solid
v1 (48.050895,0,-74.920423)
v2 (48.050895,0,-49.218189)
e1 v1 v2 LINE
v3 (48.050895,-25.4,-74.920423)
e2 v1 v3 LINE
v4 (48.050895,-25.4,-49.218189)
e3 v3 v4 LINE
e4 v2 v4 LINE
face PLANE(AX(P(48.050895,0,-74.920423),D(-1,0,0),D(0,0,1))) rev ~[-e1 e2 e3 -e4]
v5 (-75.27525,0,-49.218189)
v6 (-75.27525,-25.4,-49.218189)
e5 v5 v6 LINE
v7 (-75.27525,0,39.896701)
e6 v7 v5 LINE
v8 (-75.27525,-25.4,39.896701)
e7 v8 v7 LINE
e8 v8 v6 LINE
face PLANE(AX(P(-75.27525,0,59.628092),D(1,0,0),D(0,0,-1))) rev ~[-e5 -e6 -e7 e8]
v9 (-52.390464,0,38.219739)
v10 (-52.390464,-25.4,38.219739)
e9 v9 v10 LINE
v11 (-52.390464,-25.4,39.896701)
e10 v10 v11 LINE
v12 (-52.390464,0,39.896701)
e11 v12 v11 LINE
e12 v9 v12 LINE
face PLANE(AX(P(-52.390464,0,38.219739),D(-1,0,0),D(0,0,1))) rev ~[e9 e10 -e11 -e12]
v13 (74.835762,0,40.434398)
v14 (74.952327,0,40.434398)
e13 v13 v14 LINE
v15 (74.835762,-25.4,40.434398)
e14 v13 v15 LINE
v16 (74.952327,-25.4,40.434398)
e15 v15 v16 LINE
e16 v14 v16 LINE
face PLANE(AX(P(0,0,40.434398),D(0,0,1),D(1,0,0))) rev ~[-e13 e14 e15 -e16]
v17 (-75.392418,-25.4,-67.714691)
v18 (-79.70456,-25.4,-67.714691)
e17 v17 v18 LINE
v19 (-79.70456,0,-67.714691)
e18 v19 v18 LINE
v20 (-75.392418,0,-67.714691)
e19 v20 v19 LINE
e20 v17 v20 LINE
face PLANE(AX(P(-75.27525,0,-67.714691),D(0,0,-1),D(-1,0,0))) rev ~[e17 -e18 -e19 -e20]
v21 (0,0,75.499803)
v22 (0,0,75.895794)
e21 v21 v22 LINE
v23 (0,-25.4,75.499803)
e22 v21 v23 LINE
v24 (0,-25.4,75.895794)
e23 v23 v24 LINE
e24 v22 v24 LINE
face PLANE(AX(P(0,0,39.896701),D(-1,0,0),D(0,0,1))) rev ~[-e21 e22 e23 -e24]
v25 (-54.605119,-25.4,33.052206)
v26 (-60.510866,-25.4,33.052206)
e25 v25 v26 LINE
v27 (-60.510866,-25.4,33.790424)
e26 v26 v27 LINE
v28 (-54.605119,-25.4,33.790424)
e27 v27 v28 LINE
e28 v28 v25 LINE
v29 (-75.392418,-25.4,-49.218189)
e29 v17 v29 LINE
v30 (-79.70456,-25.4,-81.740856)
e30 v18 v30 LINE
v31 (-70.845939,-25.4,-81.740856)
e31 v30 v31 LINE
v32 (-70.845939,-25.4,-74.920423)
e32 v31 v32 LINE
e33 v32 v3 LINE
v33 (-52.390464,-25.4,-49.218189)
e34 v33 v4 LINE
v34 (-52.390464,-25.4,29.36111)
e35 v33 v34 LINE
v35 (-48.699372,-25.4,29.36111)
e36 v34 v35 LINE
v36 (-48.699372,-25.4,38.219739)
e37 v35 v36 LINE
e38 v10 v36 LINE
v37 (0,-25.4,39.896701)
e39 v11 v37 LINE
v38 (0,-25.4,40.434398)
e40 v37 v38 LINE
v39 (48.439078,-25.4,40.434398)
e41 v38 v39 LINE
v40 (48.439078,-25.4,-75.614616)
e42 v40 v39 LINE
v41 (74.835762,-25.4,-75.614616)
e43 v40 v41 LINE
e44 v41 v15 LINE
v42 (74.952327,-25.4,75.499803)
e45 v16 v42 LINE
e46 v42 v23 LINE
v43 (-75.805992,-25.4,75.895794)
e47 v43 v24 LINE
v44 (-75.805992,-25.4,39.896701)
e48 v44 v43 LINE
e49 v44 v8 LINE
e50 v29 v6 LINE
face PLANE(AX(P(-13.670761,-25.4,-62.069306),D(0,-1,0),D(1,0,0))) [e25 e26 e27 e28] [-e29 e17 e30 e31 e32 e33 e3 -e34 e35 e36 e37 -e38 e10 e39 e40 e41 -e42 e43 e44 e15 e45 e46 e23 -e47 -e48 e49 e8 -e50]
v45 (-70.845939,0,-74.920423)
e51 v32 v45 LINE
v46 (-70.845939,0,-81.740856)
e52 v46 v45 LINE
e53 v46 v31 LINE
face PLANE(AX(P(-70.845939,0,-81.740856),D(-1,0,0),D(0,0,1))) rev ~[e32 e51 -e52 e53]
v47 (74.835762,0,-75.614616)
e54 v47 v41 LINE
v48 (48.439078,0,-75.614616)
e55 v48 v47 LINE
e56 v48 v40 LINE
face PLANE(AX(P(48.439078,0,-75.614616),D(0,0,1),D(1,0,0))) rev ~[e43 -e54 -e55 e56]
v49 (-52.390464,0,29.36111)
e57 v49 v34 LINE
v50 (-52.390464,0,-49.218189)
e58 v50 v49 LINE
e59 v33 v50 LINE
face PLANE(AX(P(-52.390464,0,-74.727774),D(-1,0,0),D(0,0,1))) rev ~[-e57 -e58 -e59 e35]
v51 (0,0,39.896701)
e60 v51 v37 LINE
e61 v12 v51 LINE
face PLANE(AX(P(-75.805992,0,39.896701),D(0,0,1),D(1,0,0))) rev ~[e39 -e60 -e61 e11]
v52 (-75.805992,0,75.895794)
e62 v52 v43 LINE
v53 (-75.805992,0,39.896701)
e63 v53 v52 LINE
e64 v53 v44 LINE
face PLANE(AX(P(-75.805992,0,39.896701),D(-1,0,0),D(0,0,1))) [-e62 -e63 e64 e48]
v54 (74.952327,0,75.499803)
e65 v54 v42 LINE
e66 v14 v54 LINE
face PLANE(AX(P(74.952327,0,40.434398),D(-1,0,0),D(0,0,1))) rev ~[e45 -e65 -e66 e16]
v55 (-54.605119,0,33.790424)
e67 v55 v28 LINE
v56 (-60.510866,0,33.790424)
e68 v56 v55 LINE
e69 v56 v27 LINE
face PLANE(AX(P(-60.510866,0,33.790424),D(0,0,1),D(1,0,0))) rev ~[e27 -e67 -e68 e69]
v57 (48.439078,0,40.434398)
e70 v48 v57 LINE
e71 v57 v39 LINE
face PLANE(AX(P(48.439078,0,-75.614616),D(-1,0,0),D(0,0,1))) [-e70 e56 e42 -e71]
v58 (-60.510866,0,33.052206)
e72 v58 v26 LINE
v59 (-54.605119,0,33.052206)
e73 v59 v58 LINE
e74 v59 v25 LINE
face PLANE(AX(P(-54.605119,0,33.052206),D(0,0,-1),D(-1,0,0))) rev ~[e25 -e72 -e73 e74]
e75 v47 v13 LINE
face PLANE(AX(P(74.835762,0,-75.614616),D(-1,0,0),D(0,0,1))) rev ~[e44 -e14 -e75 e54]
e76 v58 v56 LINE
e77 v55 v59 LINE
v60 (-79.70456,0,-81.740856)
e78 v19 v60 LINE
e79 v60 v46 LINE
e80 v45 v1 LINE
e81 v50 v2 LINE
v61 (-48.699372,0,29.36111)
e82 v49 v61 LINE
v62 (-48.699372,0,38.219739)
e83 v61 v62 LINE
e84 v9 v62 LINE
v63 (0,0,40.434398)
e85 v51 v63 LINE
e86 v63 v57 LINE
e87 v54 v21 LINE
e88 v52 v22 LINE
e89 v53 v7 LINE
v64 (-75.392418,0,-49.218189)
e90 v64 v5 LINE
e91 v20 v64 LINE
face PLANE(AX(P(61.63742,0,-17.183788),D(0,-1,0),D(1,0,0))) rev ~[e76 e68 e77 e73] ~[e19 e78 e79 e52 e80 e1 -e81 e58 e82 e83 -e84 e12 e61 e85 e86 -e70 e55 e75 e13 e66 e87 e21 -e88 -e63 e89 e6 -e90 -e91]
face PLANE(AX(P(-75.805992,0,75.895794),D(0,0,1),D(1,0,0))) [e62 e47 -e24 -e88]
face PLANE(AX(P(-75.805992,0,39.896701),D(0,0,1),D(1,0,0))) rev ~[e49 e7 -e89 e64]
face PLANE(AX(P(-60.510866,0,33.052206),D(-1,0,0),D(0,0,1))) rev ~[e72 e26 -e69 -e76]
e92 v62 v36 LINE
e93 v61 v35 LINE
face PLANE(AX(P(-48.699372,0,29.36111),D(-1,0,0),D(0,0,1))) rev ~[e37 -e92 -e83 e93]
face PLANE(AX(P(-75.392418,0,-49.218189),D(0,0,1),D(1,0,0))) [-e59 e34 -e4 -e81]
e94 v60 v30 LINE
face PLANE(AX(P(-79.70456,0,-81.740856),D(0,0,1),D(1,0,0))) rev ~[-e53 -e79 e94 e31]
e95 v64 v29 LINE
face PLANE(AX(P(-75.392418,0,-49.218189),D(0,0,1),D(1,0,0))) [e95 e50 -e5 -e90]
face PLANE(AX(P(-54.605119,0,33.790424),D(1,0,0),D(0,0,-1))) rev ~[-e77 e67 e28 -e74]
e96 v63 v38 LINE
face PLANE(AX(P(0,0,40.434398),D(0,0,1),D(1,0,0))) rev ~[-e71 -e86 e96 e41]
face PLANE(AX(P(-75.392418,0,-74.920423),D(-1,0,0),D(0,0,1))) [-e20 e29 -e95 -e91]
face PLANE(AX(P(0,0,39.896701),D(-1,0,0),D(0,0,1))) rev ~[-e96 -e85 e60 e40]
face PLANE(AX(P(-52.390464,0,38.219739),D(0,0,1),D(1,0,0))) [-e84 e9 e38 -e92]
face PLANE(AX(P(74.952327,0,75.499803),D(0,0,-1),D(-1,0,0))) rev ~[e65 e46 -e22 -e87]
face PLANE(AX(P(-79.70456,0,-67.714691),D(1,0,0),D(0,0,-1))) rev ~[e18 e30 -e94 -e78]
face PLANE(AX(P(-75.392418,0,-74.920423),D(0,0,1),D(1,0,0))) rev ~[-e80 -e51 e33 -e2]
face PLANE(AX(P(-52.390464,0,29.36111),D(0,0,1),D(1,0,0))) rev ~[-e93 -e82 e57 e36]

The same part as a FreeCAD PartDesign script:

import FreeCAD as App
import Part
import Sketcher
from FreeCAD import Vector
Q = App.Units.Quantity

doc = App.newDocument("Part")
body = doc.addObject("PartDesign::Body", "Body")

# Sketch on XZ plane
sketch1 = body.newObject("Sketcher::SketchObject", "Sketch")
sketch1.AttachmentSupport = (doc.getObject("XZ_Plane"), [""])
sketch1.MapMode = "FlatFace"
sketch1.addGeometry([
    Part.LineSegment(Vector(-76, 76, 0), Vector(-76, 40, 0)),
    Part.LineSegment(Vector(-76, 40, 0), Vector(0, 40, 0)),
    Part.LineSegment(Vector(0, 40, 0), Vector(0, 76, 0)),
    Part.LineSegment(Vector(0, 76, 0), Vector(-76, 76, 0)),
], False)
sketch1.addConstraint([
    Sketcher.Constraint("Coincident", 0, 2, 1, 1),
    Sketcher.Constraint("Coincident", 1, 2, 2, 1),
    Sketcher.Constraint("Coincident", 2, 2, 3, 1),
    Sketcher.Constraint("Coincident", 3, 2, 0, 1),
    Sketcher.Constraint("Vertical", 0),
    Sketcher.Constraint("Horizontal", 1),
    Sketcher.Constraint("Vertical", 2),
    Sketcher.Constraint("Horizontal", 3),
    Sketcher.Constraint("PointOnObject", 1, 2, -2),
    Sketcher.Constraint("DistanceX", 1, 1, 1, 2, 75.805992),
    Sketcher.Constraint("DistanceY", -1, 1, 0, 2, 39.896701),
    Sketcher.Constraint("DistanceY", 0, 2, 0, 1, 35.999093),
])
pad1 = body.newObject("PartDesign::Pad", "Pad")
pad1.Profile = sketch1
pad1.Length = Q("1 in")

# Sketch on XZ plane
sketch2 = body.newObject("Sketcher::SketchObject", "Sketch001")
sketch2.AttachmentSupport = (doc.getObject("XZ_Plane"), [""])
sketch2.MapMode = "FlatFace"
sketch2.addGeometry([
    Part.LineSegment(Vector(-52.4, 59.6, 0), Vector(-75.3, 59.6, 0)),  # 0
    Part.LineSegment(Vector(-75.3, 59.6, 0), Vector(-75.3, -67.7, 0)),  # 1
    Part.LineSegment(Vector(-75.3, -67.7, 0), Vector(-79.7, -67.7, 0)),  # 2
    Part.LineSegment(Vector(-79.7, -67.7, 0), Vector(-79.7, -81.7, 0)),  # 3
    Part.LineSegment(Vector(-79.7, -81.7, 0), Vector(-70.8, -81.7, 0)),  # 4
    Part.LineSegment(Vector(-70.8, -81.7, 0), Vector(-70.8, -74.7, 0)),  # 5
    Part.LineSegment(Vector(-70.8, -74.7, 0), Vector(-52.4, -74.7, 0)),  # 6
    Part.LineSegment(Vector(-52.4, -74.7, 0), Vector(-52.4, 29.4, 0)),  # 7
    Part.LineSegment(Vector(-52.4, 29.4, 0), Vector(-48.7, 29.4, 0)),  # 8
    Part.LineSegment(Vector(-48.7, 29.4, 0), Vector(-48.7, 38.2, 0)),  # 9
    Part.LineSegment(Vector(-48.7, 38.2, 0), Vector(-52.4, 38.2, 0)),  # 10
    Part.LineSegment(Vector(-52.4, 38.2, 0), Vector(-52.4, 59.6, 0)),  # 11
    Part.LineSegment(Vector(-60.5, 33.8, 0), Vector(-54.6, 33.8, 0)),  # 12
    Part.LineSegment(Vector(-54.6, 33.8, 0), Vector(-54.6, 33.1, 0)),  # 13
    Part.LineSegment(Vector(-54.6, 33.1, 0), Vector(-60.5, 33.1, 0)),  # 14
    Part.LineSegment(Vector(-60.5, 33.1, 0), Vector(-60.5, 33.8, 0)),  # 15
], False)
sketch2.addConstraint([
    Sketcher.Constraint("Coincident", 0, 2, 1, 1),
    Sketcher.Constraint("Coincident", 1, 2, 2, 1),
    Sketcher.Constraint("Coincident", 2, 2, 3, 1),
    Sketcher.Constraint("Coincident", 3, 2, 4, 1),
    Sketcher.Constraint("Coincident", 4, 2, 5, 1),
    Sketcher.Constraint("Coincident", 5, 2, 6, 1),
    Sketcher.Constraint("Coincident", 6, 2, 7, 1),
    Sketcher.Constraint("Coincident", 7, 2, 8, 1),
    Sketcher.Constraint("Coincident", 8, 2, 9, 1),
    Sketcher.Constraint("Coincident", 9, 2, 10, 1),
    Sketcher.Constraint("Coincident", 10, 2, 11, 1),
    Sketcher.Constraint("Coincident", 11, 2, 0, 1),
    Sketcher.Constraint("Coincident", 12, 2, 13, 1),
    Sketcher.Constraint("Coincident", 13, 2, 14, 1),
    Sketcher.Constraint("Coincident", 14, 2, 15, 1),
    Sketcher.Constraint("Coincident", 15, 2, 12, 1),
    Sketcher.Constraint("Horizontal", 0),
    Sketcher.Constraint("Vertical", 1),
    Sketcher.Constraint("Horizontal", 2),
    Sketcher.Constraint("Vertical", 3),
    Sketcher.Constraint("Horizontal", 4),
    Sketcher.Constraint("Vertical", 5),
    Sketcher.Constraint("Horizontal", 6),
    Sketcher.Constraint("Vertical", 7),
    Sketcher.Constraint("Horizontal", 8),
    Sketcher.Constraint("Vertical", 9),
    Sketcher.Constraint("Horizontal", 10),
    Sketcher.Constraint("Vertical", 11),
    Sketcher.Constraint("Horizontal", 12),
    Sketcher.Constraint("Vertical", 13),
    Sketcher.Constraint("Horizontal", 14),
    Sketcher.Constraint("Vertical", 15),
    Sketcher.Constraint("Vertical", 7, 2, 10, 2),
    Sketcher.Constraint("DistanceX", 2, 2, 2, 1, 4.429311),
    Sketcher.Constraint("DistanceX", 4, 1, 4, 2, 8.858621),
    Sketcher.Constraint("DistanceY", 9, 1, 9, 2, 8.858629),
    Sketcher.Constraint("DistanceY", 13, 2, 13, 1, 0.738218),
    Sketcher.Constraint("DistanceY", 1, 2, 7, 2, 97.075801),
    Sketcher.Constraint("DistanceX", 0, 2, 0, 1, 22.884786),
    Sketcher.Constraint("DistanceX", 8, 1, 8, 2, 3.691092),
    Sketcher.Constraint("DistanceX", 12, 1, 12, 2, 5.905747),
    Sketcher.Constraint("DistanceY", 1, 2, 1, 1, 127.342783),
    Sketcher.Constraint("DistanceY", 3, 2, 3, 1, 14.026165),
    Sketcher.Constraint("DistanceY", 5, 1, 5, 2, 7.013083),
    Sketcher.Constraint("DistanceX", 0, 2, -1, 1, 75.27525),
    Sketcher.Constraint("DistanceY", -1, 1, 0, 2, 59.628092),
    Sketcher.Constraint("DistanceX", 12, 2, -1, 1, 54.605119),
    Sketcher.Constraint("DistanceY", -1, 1, 12, 2, 33.790424),
])
pad2 = body.newObject("PartDesign::Pad", "Pad001")
pad2.Profile = sketch2
pad2.Length = Q("1 in")

# Sketch on XZ plane
sketch3 = body.newObject("Sketcher::SketchObject", "Sketch002")
sketch3.AttachmentSupport = (doc.getObject("XZ_Plane"), [""])
sketch3.MapMode = "FlatFace"
sketch3.addGeometry([
    Part.LineSegment(Vector(75, 40, 0), Vector(75, 75, 0)),
    Part.LineSegment(Vector(75, 75, 0), Vector(0, 75, 0)),
    Part.LineSegment(Vector(0, 75, 0), Vector(0, 40, 0)),
    Part.LineSegment(Vector(0, 40, 0), Vector(75, 40, 0)),
], False)
sketch3.addConstraint([
    Sketcher.Constraint("Coincident", 0, 2, 1, 1),
    Sketcher.Constraint("Coincident", 1, 2, 2, 1),
    Sketcher.Constraint("Coincident", 2, 2, 3, 1),
    Sketcher.Constraint("Coincident", 3, 2, 0, 1),
    Sketcher.Constraint("Vertical", 0),
    Sketcher.Constraint("Horizontal", 1),
    Sketcher.Constraint("Vertical", 2),
    Sketcher.Constraint("Horizontal", 3),
    Sketcher.Constraint("PointOnObject", 1, 2, -2),
    Sketcher.Constraint("DistanceX", 1, 2, 1, 1, 74.952327),
    Sketcher.Constraint("DistanceY", 0, 1, 0, 2, 35.065405),
    Sketcher.Constraint("DistanceY", -1, 1, 0, 2, 75.499803),
])
pad3 = body.newObject("PartDesign::Pad", "Pad002")
pad3.Profile = sketch3
pad3.Length = Q("1 in")

# Sketch on XZ plane
sketch4 = body.newObject("Sketcher::SketchObject", "Sketch003")
sketch4.AttachmentSupport = (doc.getObject("XZ_Plane"), [""])
sketch4.MapMode = "FlatFace"
sketch4.addGeometry([
    Part.LineSegment(Vector(48, 41, 0), Vector(48, -76, 0)),
    Part.LineSegment(Vector(48, -76, 0), Vector(75, -76, 0)),
    Part.LineSegment(Vector(75, -76, 0), Vector(75, 41, 0)),
    Part.LineSegment(Vector(75, 41, 0), Vector(48, 41, 0)),
], False)
sketch4.addConstraint([
    Sketcher.Constraint("Coincident", 0, 2, 1, 1),
    Sketcher.Constraint("Coincident", 1, 2, 2, 1),
    Sketcher.Constraint("Coincident", 2, 2, 3, 1),
    Sketcher.Constraint("Coincident", 3, 2, 0, 1),
    Sketcher.Constraint("Vertical", 0),
    Sketcher.Constraint("Horizontal", 1),
    Sketcher.Constraint("Vertical", 2),
    Sketcher.Constraint("Horizontal", 3),
    Sketcher.Constraint("DistanceX", 1, 1, 1, 2, 26.396684),
    Sketcher.Constraint("DistanceY", 0, 2, 0, 1, 116.861656),
    Sketcher.Constraint("DistanceX", -1, 1, 0, 2, 48.439078),
    Sketcher.Constraint("DistanceY", -1, 1, 2, 2, 41.24704),
])
pad4 = body.newObject("PartDesign::Pad", "Pad003")
pad4.Profile = sketch4
pad4.Length = Q("1 in")

# Sketch on XZ plane
sketch5 = body.newObject("Sketcher::SketchObject", "Sketch004")
sketch5.AttachmentSupport = (doc.getObject("XZ_Plane"), [""])
sketch5.MapMode = "FlatFace"
sketch5.addGeometry([
    Part.LineSegment(Vector(-75, -49, 0), Vector(-75, -75, 0)),
    Part.LineSegment(Vector(-75, -75, 0), Vector(48, -75, 0)),
    Part.LineSegment(Vector(48, -75, 0), Vector(48, -49, 0)),
    Part.LineSegment(Vector(48, -49, 0), Vector(-75, -49, 0)),
], False)
sketch5.addConstraint([
    Sketcher.Constraint("Coincident", 0, 2, 1, 1),
    Sketcher.Constraint("Coincident", 1, 2, 2, 1),
    Sketcher.Constraint("Coincident", 2, 2, 3, 1),
    Sketcher.Constraint("Coincident", 3, 2, 0, 1),
    Sketcher.Constraint("Vertical", 0),
    Sketcher.Constraint("Horizontal", 1),
    Sketcher.Constraint("Vertical", 2),
    Sketcher.Constraint("Horizontal", 3),
    Sketcher.Constraint("DistanceX", 1, 1, 1, 2, 123.443313),
    Sketcher.Constraint("DistanceY", 0, 2, 0, 1, 25.702234),
    Sketcher.Constraint("DistanceY", 2, 2, -1, 1, 49.218189),
    Sketcher.Constraint("DistanceX", 0, 2, -1, 1, 75.392418),
])
pad5 = body.newObject("PartDesign::Pad", "Pad004")
pad5.Profile = sketch5
pad5.Length = Q("1 in")

doc.recompute()
